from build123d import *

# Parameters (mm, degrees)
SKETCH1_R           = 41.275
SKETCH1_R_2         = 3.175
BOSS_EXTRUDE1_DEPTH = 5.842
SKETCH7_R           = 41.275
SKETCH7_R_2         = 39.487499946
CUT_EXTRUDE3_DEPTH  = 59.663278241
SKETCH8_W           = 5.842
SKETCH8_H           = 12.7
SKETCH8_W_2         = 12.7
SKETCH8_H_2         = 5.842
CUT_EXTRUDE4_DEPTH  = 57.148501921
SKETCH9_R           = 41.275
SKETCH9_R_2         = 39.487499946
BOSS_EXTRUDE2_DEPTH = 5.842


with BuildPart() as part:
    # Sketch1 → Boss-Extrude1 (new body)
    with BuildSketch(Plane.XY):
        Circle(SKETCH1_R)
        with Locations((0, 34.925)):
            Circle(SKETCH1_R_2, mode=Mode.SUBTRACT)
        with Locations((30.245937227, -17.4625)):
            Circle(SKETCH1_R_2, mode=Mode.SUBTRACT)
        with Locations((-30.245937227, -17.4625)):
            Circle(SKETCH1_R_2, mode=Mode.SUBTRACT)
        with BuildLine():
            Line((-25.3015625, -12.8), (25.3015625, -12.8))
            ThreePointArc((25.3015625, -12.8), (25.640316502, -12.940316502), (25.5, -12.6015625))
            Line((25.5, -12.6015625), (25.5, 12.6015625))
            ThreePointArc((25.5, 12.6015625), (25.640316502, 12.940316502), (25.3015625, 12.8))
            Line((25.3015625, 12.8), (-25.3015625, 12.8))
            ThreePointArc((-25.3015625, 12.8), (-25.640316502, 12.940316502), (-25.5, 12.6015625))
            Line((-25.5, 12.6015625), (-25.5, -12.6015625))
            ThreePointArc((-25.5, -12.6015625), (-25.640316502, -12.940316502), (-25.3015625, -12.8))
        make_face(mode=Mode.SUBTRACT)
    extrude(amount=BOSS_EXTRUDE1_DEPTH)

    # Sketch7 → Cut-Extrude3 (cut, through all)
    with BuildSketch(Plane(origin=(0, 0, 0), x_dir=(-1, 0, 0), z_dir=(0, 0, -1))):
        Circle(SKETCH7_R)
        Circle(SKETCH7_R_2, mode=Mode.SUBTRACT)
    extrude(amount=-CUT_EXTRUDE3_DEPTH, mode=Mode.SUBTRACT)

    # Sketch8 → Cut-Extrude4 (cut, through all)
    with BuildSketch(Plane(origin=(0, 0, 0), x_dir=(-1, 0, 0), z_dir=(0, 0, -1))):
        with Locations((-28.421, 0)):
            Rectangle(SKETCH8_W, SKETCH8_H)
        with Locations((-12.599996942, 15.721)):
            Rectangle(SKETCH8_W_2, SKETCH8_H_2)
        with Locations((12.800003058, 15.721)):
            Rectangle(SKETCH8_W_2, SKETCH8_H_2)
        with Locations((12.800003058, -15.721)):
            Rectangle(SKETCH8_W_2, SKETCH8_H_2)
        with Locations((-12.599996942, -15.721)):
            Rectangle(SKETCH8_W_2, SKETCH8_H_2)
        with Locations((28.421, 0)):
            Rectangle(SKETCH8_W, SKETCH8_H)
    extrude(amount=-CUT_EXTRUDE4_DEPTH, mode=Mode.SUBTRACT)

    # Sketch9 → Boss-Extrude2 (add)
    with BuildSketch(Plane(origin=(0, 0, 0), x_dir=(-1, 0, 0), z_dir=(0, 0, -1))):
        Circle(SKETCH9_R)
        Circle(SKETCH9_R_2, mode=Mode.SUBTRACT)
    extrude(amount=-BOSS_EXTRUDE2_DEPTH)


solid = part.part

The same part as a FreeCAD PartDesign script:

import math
import FreeCAD as App
import Part
import Sketcher

V = App.Vector
Q = App.Units.Quantity

doc = App.newDocument("Part")
params = doc.addObject("Spreadsheet::Sheet", "Params")
for row, (alias, value) in enumerate([
    ("sketch1_diameter", "3.25 in"),
    ("sketch1_diameter2", "0.25 in"),
    ("pad1_length", "0.23 in"),
    ("sketch2_diameter", "3.25 in"),
    ("sketch3_width", "0.5 in"),
    ("sketch3_width2", "0.23 in"),
    ("sketch4_diameter", "3.25 in"),
    ("pad2_length", "0.23 in"),
], start=1):
    params.set(f"A{row}", alias)
    params.set(f"B{row}", "=" + value)
    params.setAlias(f"B{row}", alias)

body = doc.addObject("PartDesign::Body", "Body")

sketch1 = body.newObject("Sketcher::SketchObject", "Sketch")
sketch1.AttachmentSupport = (doc.getObject("XY_Plane"), [""])
sketch1.MapMode = "FlatFace"
sketch1.addGeometry([
    Part.Circle(V(0, 0, 0), V(0, 0, 1), 41.27),
    Part.Circle(V(-30.25, -17.46, 0), V(0, 0, 1), 3.17),
    Part.Circle(V(30.25, -17.46, 0), V(0, 0, 1), 3.17),
    Part.LineSegment(V(25.3, -12.8, 0), V(-25.3, -12.8, 0)),
    Part.ArcOfCircle(Part.Circle(V(-25.5, -12.8, 0), V(0, 0, 1), 0.2), math.radians(90), math.radians(360)),
    Part.LineSegment(V(-25.5, -12.6, 0), V(-25.5, 12.6, 0)),
    Part.ArcOfCircle(Part.Circle(V(-25.5, 12.8, 0), V(0, 0, 1), 0.2), math.radians(0), math.radians(270)),
    Part.LineSegment(V(-25.3, 12.8, 0), V(25.3, 12.8, 0)),
    Part.ArcOfCircle(Part.Circle(V(25.5, 12.8, 0), V(0, 0, 1), 0.2), math.radians(-90), math.radians(180)),
    Part.LineSegment(V(25.5, 12.6, 0), V(25.5, -12.6, 0)),
    Part.ArcOfCircle(Part.Circle(V(25.5, -12.8, 0), V(0, 0, 1), 0.2), math.radians(180), math.radians(450)),
    Part.Circle(V(0, 34.92, 0), V(0, 0, 1), 3.17),
], False)
sketch1.addConstraint([
    Sketcher.Constraint("Coincident", 3, 2, 4, 2),
    Sketcher.Constraint("Coincident", 4, 1, 5, 1),
    Sketcher.Constraint("Coincident", 5, 2, 6, 2),
    Sketcher.Constraint("Coincident", 6, 1, 7, 1),
    Sketcher.Constraint("Coincident", 7, 2, 8, 2),
    Sketcher.Constraint("Coincident", 8, 1, 9, 1),
    Sketcher.Constraint("Coincident", 9, 2, 10, 2),
    Sketcher.Constraint("Coincident", 10, 1, 3, 1),
    Sketcher.Constraint("Horizontal", 3),
    Sketcher.Constraint("Vertical", 5),
    Sketcher.Constraint("Horizontal", 7),
    Sketcher.Constraint("Vertical", 9),
    Sketcher.Constraint("Coincident", 0, 3, -1, 1),
    Sketcher.Constraint("Equal", 1, 2),
    Sketcher.Constraint("Equal", 4, 6),
    Sketcher.Constraint("Equal", 6, 8),
    Sketcher.Constraint("Equal", 8, 10),
    Sketcher.Constraint("Equal", 2, 11),
    Sketcher.Constraint("Symmetric", 4, 3, 8, 3, -1, 1),
    Sketcher.Constraint("Symmetric", 6, 3, 10, 3, -1, 1),
    Sketcher.Constraint("Symmetric", 1, 3, 2, 3, -2),
    Sketcher.Constraint("Symmetric", 6, 3, 8, 3, -2),
    Sketcher.Constraint("PointOnObject", 11, 3, -2),
    Sketcher.Constraint("Horizontal", 10, 3, 3, 2),
    Sketcher.Constraint("Horizontal", 8, 3, 6, 1),
    Sketcher.Constraint("Vertical", 6, 3, 4, 1),
    Sketcher.Constraint("Vertical", 10, 3, 8, 1),
    Sketcher.Constraint("Diameter", 0, Q("3.25 in")),
    Sketcher.Constraint("Diameter", 1, Q("0.25 in")),
    Sketcher.Constraint("DistanceY", 1, 3, -1, 1, Q("0.6875 in")),
    Sketcher.Constraint("DistanceY", -1, 1, 11, 3, Q("1.375 in")),
    Sketcher.Constraint("Radius", 4, Q("0.198437 mm")),
    Sketcher.Constraint("DistanceX", 4, 3, -1, 1, Q("25.5 mm")),
    Sketcher.Constraint("DistanceY", 4, 3, -1, 1, Q("12.8 mm")),
    Sketcher.Constraint("DistanceX", 1, 3, -1, 1, Q("30.245937 mm")),
])
sketch1.setExpression("Constraints[27]", "Params.sketch1_diameter")
sketch1.setExpression("Constraints[28]", "Params.sketch1_diameter2")
pad1 = body.newObject("PartDesign::Pad", "Pad")
pad1.Profile = sketch1
pad1.setExpression("Length", "Params.pad1_length")

sketch2 = body.newObject("Sketcher::SketchObject", "Sketch001")
sketch2.AttachmentSupport = (doc.getObject("XY_Plane"), [""])
sketch2.MapMode = "FlatFace"
sketch2.addGeometry([
    Part.Circle(V(0, 0, 0), V(0, 0, 1), 41),
    Part.Circle(V(0, 0, 0), V(0, 0, 1), 39),
], False)
sketch2.addConstraint([
    Sketcher.Constraint("Coincident", 0, 3, -1, 1),
    Sketcher.Constraint("Coincident", 1, 3, -1, 1),
    Sketcher.Constraint("Diameter", 0, Q("3.25 in")),
    Sketcher.Constraint("Diameter", 1, Q("78.975 mm")),
])
sketch2.setExpression("Constraints[2]", "Params.sketch2_diameter")
pocket1 = body.newObject("PartDesign::Pocket", "Pocket")
pocket1.Profile = sketch2
pocket1.Type = "ThroughAll"
pocket1.Reversed = True

sketch3 = body.newObject("Sketcher::SketchObject", "Sketch002")
sketch3.AttachmentSupport = (doc.getObject("XY_Plane"), [""])
sketch3.MapMode = "FlatFace"
sketch3.addGeometry([
    Part.LineSegment(V(31, 6, 0), V(31, -6, 0)),
    Part.LineSegment(V(31, -6, 0), V(26, -6, 0)),
    Part.LineSegment(V(26, -6, 0), V(26, 6, 0)),
    Part.LineSegment(V(26, 6, 0), V(31, 6, 0)),
    Part.LineSegment(V(19, 19, 0), V(19, 13, 0)),
    Part.LineSegment(V(19, 13, 0), V(6, 13, 0)),
    Part.LineSegment(V(6, 13, 0), V(6, 19, 0)),
    Part.LineSegment(V(6, 19, 0), V(19, 19, 0)),
    Part.LineSegment(V(-6, 19, 0), V(-6, 13, 0)),
    Part.LineSegment(V(-6, 13, 0), V(-19, 13, 0)),
    Part.LineSegment(V(-19, 13, 0), V(-19, 19, 0)),
    Part.LineSegment(V(-19, 19, 0), V(-6, 19, 0)),
    Part.LineSegment(V(-6, -13, 0), V(-6, -19, 0)),
    Part.LineSegment(V(-6, -19, 0), V(-19, -19, 0)),
    Part.LineSegment(V(-19, -19, 0), V(-19, -13, 0)),
    Part.LineSegment(V(-19, -13, 0), V(-6, -13, 0)),
    Part.LineSegment(V(19, -13, 0), V(19, -19, 0)),
    Part.LineSegment(V(19, -19, 0), V(6, -19, 0)),
    Part.LineSegment(V(6, -19, 0), V(6, -13, 0)),
    Part.LineSegment(V(6, -13, 0), V(19, -13, 0)),
    Part.LineSegment(V(-26, 6, 0), V(-26, -6, 0)),
    Part.LineSegment(V(-26, -6, 0), V(-31, -6, 0)),
    Part.LineSegment(V(-31, -6, 0), V(-31, 6, 0)),
    Part.LineSegment(V(-31, 6, 0), V(-26, 6, 0)),
], False)
sketch3.addConstraint([
    Sketcher.Constraint("Coincident", 0, 2, 1, 1),
    Sketcher.Constraint("Coincident", 1, 2, 2, 1),
    Sketcher.Constraint("Coincident", 2, 2, 3, 1),
    Sketcher.Constraint("Coincident", 3, 2, 0, 1),
    Sketcher.Constraint("Coincident", 4, 2, 5, 1),
    Sketcher.Constraint("Coincident", 5, 2, 6, 1),
    Sketcher.Constraint("Coincident", 6, 2, 7, 1),
    Sketcher.Constraint("Coincident", 7, 2, 4, 1),
    Sketcher.Constraint("Coincident", 8, 2, 9, 1),
    Sketcher.Constraint("Coincident", 9, 2, 10, 1),
    Sketcher.Constraint("Coincident", 10, 2, 11, 1),
    Sketcher.Constraint("Coincident", 11, 2, 8, 1),
    Sketcher.Constraint("Coincident", 12, 2, 13, 1),
    Sketcher.Constraint("Coincident", 13, 2, 14, 1),
    Sketcher.Constraint("Coincident", 14, 2, 15, 1),
    Sketcher.Constraint("Coincident", 15, 2, 12, 1),
    Sketcher.Constraint("Coincident", 16, 2, 17, 1),
    Sketcher.Constraint("Coincident", 17, 2, 18, 1),
    Sketcher.Constraint("Coincident", 18, 2, 19, 1),
    Sketcher.Constraint("Coincident", 19, 2, 16, 1),
    Sketcher.Constraint("Coincident", 20, 2, 21, 1),
    Sketcher.Constraint("Coincident", 21, 2, 22, 1),
    Sketcher.Constraint("Coincident", 22, 2, 23, 1),
    Sketcher.Constraint("Coincident", 23, 2, 20, 1),
    Sketcher.Constraint("Vertical", 0),
    Sketcher.Constraint("Horizontal", 1),
    Sketcher.Constraint("Vertical", 2),
    Sketcher.Constraint("Horizontal", 3),
    Sketcher.Constraint("Vertical", 4),
    Sketcher.Constraint("Horizontal", 5),
    Sketcher.Constraint("Vertical", 6),
    Sketcher.Constraint("Horizontal", 7),
    Sketcher.Constraint("Vertical", 8),
    Sketcher.Constraint("Horizontal", 9),
    Sketcher.Constraint("Vertical", 10),
    Sketcher.Constraint("Horizontal", 11),
    Sketcher.Constraint("Vertical", 12),
    Sketcher.Constraint("Horizontal", 13),
    Sketcher.Constraint("Vertical", 14),
    Sketcher.Constraint("Horizontal", 15),
    Sketcher.Constraint("Vertical", 16),
    Sketcher.Constraint("Horizontal", 17),
    Sketcher.Constraint("Vertical", 18),
    Sketcher.Constraint("Horizontal", 19),
    Sketcher.Constraint("Vertical", 20),
    Sketcher.Constraint("Horizontal", 21),
    Sketcher.Constraint("Vertical", 22),
    Sketcher.Constraint("Horizontal", 23),
    Sketcher.Constraint("Symmetric", 2, 2, 20, 2, -1, 1),
    Sketcher.Constraint("Symmetric", 0, 2, 22, 2, -1, 1),
    Sketcher.Constraint("Symmetric", 11, 2, 12, 2, -1),
    Sketcher.Constraint("Symmetric", 9, 2, 14, 2, -1),
    Sketcher.Constraint("Symmetric", 7, 2, 16, 2, -1),
    Sketcher.Constraint("Symmetric", 5, 2, 18, 2, -1),
    Sketcher.Constraint("Horizontal", 5, 2, 8, 2),
    Sketcher.Constraint("Horizontal", 7, 2, 10, 2),
    Sketcher.Constraint("Horizontal", 1, 2, 20, 2),
    Sketcher.Constraint("Equal", 7, 9),
    Sketcher.Constraint("Equal", 19, 0),
    Sketcher.Constraint("Equal", 23, 4),
    Sketcher.Constraint("DistanceX", 5, 2, 5, 1, Q("0.5 in")),
    Sketcher.Constraint("DistanceX", 8, 2, 4, 2, Q("1 in")),
    Sketcher.Constraint("DistanceX", 1, 2, 1, 1, Q("0.23 in")),
    Sketcher.Constraint("DistanceX", 20, 2, 14, 2, Q("0.2499999 in")),
    Sketcher.Constraint("DistanceX", -1, 1, 0, 2, Q("31.342 mm")),
    Sketcher.Constraint("DistanceY", -1, 1, 4, 2, Q("12.8 mm")),
])
sketch3.setExpression("Constraints[60]", "Params.sketch3_width")
sketch3.setExpression("Constraints[62]", "Params.sketch3_width2")
pocket2 = body.newObject("PartDesign::Pocket", "Pocket001")
pocket2.Profile = sketch3
pocket2.Type = "ThroughAll"
pocket2.Reversed = True

sketch4 = body.newObject("Sketcher::SketchObject", "Sketch003")
sketch4.AttachmentSupport = (doc.getObject("XY_Plane"), [""])
sketch4.MapMode = "FlatFace"
sketch4.addGeometry([
    Part.Circle(V(0, 0, 0), V(0, 0, 1), 41),
    Part.Circle(V(0, 0, 0), V(0, 0, 1), 39),
], False)
sketch4.addConstraint([
    Sketcher.Constraint("Coincident", 0, 3, -1, 1),
    Sketcher.Constraint("Coincident", 1, 3, -1, 1),
    Sketcher.Constraint("Diameter", 0, Q("3.25 in")),
    Sketcher.Constraint("Diameter", 1, Q("78.975 mm")),
])
sketch4.setExpression("Constraints[2]", "Params.sketch4_diameter")
pad2 = body.newObject("PartDesign::Pad", "Pad001")
pad2.Profile = sketch4
pad2.setExpression("Length", "Params.pad2_length")

doc.recompute()
